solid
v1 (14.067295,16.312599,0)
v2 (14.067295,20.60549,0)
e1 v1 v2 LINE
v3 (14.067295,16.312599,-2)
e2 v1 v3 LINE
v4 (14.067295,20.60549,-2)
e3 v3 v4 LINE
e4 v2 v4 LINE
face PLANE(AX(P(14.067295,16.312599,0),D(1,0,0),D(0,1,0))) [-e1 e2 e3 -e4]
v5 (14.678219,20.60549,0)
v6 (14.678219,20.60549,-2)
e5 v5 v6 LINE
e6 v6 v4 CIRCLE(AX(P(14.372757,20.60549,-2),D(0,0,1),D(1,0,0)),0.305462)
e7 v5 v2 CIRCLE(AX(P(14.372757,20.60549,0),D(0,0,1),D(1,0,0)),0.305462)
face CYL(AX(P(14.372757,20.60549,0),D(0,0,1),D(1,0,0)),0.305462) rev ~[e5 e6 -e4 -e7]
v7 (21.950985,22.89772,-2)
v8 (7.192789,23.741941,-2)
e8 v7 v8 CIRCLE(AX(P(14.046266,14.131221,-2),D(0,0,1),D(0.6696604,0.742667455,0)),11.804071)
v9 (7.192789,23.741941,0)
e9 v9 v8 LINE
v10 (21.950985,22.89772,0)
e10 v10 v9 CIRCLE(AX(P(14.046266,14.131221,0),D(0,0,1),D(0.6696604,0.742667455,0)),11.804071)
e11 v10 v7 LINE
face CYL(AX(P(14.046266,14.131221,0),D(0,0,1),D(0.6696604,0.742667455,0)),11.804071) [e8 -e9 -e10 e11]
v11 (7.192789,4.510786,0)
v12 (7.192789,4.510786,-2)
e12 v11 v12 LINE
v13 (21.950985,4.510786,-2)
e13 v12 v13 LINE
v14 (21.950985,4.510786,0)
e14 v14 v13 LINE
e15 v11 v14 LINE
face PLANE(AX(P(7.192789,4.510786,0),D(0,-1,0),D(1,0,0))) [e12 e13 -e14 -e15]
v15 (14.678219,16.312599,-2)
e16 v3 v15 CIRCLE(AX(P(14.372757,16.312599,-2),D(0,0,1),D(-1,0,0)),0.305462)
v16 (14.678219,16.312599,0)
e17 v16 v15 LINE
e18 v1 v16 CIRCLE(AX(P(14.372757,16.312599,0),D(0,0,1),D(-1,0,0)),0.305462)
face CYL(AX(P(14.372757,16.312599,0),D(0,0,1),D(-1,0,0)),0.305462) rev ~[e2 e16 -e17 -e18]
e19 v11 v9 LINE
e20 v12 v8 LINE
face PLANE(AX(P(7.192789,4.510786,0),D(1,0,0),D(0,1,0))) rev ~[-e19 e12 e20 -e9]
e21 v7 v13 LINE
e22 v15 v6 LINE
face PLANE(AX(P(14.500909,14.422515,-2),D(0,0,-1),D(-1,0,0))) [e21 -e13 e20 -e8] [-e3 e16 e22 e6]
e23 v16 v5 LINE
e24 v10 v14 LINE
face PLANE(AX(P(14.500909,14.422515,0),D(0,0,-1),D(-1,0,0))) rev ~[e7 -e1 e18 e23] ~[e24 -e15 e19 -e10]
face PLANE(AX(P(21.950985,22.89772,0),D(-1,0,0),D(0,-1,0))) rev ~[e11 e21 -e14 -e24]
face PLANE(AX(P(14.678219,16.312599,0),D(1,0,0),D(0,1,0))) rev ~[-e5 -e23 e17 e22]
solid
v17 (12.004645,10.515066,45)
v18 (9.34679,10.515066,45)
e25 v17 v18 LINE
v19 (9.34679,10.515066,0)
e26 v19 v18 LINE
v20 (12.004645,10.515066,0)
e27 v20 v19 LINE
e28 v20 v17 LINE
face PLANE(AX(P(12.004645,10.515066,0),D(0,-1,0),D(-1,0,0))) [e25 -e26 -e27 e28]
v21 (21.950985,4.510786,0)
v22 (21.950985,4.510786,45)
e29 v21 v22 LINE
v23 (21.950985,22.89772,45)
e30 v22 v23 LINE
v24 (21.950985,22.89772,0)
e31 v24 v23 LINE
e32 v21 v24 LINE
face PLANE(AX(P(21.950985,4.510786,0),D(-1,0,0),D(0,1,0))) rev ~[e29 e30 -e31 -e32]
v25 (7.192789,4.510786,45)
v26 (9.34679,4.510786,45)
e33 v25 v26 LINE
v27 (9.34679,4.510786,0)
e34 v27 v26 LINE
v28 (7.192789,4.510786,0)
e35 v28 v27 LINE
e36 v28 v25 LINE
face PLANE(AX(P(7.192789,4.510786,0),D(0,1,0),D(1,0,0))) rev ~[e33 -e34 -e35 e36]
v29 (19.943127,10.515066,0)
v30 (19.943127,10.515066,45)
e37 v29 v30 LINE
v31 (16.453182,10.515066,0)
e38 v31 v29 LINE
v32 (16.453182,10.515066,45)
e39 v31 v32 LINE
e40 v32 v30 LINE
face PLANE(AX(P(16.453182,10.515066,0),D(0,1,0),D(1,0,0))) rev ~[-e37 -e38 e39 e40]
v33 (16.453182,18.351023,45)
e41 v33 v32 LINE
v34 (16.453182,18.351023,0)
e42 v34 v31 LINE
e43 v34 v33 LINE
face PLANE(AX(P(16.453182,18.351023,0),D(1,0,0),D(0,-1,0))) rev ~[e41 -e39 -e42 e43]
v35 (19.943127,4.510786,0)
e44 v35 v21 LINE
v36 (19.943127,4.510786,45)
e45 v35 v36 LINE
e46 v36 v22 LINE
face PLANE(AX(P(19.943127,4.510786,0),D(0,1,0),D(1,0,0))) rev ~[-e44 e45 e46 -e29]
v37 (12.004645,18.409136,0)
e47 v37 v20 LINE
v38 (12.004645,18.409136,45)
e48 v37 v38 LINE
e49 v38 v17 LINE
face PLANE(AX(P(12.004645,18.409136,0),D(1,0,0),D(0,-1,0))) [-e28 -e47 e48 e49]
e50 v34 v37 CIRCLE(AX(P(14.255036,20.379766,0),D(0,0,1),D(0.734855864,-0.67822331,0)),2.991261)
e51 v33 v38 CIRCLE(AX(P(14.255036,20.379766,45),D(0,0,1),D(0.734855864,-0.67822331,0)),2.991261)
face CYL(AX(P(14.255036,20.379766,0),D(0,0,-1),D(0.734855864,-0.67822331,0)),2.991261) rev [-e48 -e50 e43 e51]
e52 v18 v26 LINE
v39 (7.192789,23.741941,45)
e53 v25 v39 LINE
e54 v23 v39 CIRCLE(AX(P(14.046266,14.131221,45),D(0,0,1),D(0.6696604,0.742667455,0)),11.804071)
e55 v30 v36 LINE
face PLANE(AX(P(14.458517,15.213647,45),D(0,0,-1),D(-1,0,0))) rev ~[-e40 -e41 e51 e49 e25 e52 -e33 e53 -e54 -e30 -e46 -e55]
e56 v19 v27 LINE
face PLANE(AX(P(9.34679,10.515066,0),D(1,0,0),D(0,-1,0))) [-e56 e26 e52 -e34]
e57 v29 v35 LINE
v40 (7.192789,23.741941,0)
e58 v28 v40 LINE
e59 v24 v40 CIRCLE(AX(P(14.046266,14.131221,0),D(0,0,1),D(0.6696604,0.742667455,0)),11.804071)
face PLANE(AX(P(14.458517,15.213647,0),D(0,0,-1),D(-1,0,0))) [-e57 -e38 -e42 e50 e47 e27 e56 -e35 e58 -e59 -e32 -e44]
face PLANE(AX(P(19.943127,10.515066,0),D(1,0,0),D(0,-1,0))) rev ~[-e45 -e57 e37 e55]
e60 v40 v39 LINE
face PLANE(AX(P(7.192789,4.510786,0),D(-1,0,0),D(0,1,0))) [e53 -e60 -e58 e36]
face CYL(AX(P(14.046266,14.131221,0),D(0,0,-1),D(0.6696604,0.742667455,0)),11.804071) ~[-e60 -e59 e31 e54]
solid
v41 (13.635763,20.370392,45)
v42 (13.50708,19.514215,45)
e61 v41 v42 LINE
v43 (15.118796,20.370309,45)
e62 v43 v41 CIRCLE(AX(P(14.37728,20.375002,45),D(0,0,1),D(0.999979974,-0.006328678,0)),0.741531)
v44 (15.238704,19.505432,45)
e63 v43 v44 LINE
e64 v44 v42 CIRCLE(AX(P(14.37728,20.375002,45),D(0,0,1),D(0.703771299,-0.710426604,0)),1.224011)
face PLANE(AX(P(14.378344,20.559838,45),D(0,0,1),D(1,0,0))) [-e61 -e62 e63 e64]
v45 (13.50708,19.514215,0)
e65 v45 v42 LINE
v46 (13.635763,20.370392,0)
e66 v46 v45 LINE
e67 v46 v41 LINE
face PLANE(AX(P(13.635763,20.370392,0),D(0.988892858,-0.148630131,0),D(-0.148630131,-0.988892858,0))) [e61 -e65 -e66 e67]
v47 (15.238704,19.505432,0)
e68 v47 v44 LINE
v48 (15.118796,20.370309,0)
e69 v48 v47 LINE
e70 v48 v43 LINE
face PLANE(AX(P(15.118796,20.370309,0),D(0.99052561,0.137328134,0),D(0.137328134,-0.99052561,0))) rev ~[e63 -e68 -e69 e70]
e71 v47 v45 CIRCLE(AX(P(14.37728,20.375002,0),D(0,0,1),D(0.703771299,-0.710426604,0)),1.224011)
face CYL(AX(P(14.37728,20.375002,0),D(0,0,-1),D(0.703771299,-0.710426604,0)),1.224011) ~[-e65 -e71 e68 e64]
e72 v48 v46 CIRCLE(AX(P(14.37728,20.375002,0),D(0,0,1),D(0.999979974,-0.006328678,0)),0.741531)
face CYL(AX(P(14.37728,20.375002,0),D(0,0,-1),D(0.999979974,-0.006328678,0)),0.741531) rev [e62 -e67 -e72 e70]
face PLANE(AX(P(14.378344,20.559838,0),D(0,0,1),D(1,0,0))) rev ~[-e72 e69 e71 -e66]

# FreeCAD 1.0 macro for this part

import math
import FreeCAD as App
import Part
import Sketcher

doc = App.newDocument("Part")
body = doc.addObject("PartDesign::Body", "Body")

# Sketch on XY plane
sketch1 = doc.addObject("Sketcher::SketchObject", "Sketch")
body.addObject(sketch1)
sketch1.AttachmentSupport = (doc.XY_Plane, [""])
sketch1.MapMode = "FlatFace"
sketch1.addGeometry([
    Part.LineSegment(App.Vector(7.2, 23.7, 0), App.Vector(7.2, 4.5, 0)),  # 0
    Part.LineSegment(App.Vector(7.2, 4.5, 0), App.Vector(9.3, 4.5, 0)),  # 1
    Part.LineSegment(App.Vector(9.3, 4.5, 0), App.Vector(9.3, 10.5, 0)),  # 2
    Part.LineSegment(App.Vector(9.3, 10.5, 0), App.Vector(12, 10.5, 0)),  # 3
    Part.LineSegment(App.Vector(12, 10.5, 0), App.Vector(12, 18.4, 0)),  # 4
    Part.ArcOfCircle(Part.Circle(App.Vector(14.3, 20.4, 0), App.Vector(0, 0, 1), 3), math.radians(-43), math.radians(221)),  # 5
    Part.LineSegment(App.Vector(16.5, 18.4, 0), App.Vector(16.5, 10.5, 0)),  # 6
    Part.LineSegment(App.Vector(16.5, 10.5, 0), App.Vector(19.9, 10.5, 0)),  # 7
    Part.LineSegment(App.Vector(19.9, 10.5, 0), App.Vector(19.9, 4.5, 0)),  # 8
    Part.LineSegment(App.Vector(19.9, 4.5, 0), App.Vector(22, 4.5, 0)),  # 9
    Part.LineSegment(App.Vector(22, 4.5, 0), App.Vector(22, 22.9, 0)),  # 10
    Part.ArcOfCircle(Part.Circle(App.Vector(14, 14.1, 0), App.Vector(0, 0, 1), 11.8), math.radians(48), math.radians(125)),  # 11
], False)
sketch1.addConstraint([
    Sketcher.Constraint("Coincident", 0, 2, 1, 1),
    Sketcher.Constraint("Coincident", 1, 2, 2, 1),
    Sketcher.Constraint("Coincident", 2, 2, 3, 1),
    Sketcher.Constraint("Coincident", 3, 2, 4, 1),
    Sketcher.Constraint("Coincident", 4, 2, 5, 2),
    Sketcher.Constraint("Coincident", 5, 1, 6, 1),
    Sketcher.Constraint("Coincident", 6, 2, 7, 1),
    Sketcher.Constraint("Coincident", 7, 2, 8, 1),
    Sketcher.Constraint("Coincident", 8, 2, 9, 1),
    Sketcher.Constraint("Coincident", 9, 2, 10, 1),
    Sketcher.Constraint("Coincident", 10, 2, 11, 1),
    Sketcher.Constraint("Coincident", 11, 2, 0, 1),
    Sketcher.Constraint("Vertical", 0),
    Sketcher.Constraint("Horizontal", 1),
    Sketcher.Constraint("Vertical", 2),
    Sketcher.Constraint("Horizontal", 3),
    Sketcher.Constraint("Vertical", 4),
    Sketcher.Constraint("Vertical", 6),
    Sketcher.Constraint("Horizontal", 7),
    Sketcher.Constraint("Vertical", 8),
    Sketcher.Constraint("Horizontal", 9),
    Sketcher.Constraint("Vertical", 10),
    Sketcher.Constraint("Horizontal", 3, 2, 6, 2),
    Sketcher.Constraint("Horizontal", 1, 2, 8, 2),
    Sketcher.Constraint("DistanceX", 1, 1, 1, 2, 2.154001),
    Sketcher.Constraint("Radius", 5, 2.991261),
    Sketcher.Constraint("Radius", 11, 11.804071),
    Sketcher.Constraint("DistanceY", 2, 1, 2, 2, 6.00428),
    Sketcher.Constraint("DistanceY", 4, 1, 4, 2, 7.89407),
    Sketcher.Constraint("DistanceY", 2, 2, 5, 3, 9.8647),
    Sketcher.Constraint("DistanceY", 11, 3, 10, 2, 8.766499),
    Sketcher.Constraint("DistanceX", 3, 1, 3, 2, 2.657855),
    Sketcher.Constraint("DistanceX", 7, 1, 7, 2, 3.489945),
    Sketcher.Constraint("DistanceX", 9, 1, 9, 2, 2.007858),
    Sketcher.Constraint("DistanceY", 0, 2, 0, 1, 19.231155),
    Sketcher.Constraint("DistanceY", 6, 2, 6, 1, 7.835957),
    Sketcher.Constraint("DistanceY", -1, 1, 11, 3, 14.131221),
    Sketcher.Constraint("DistanceX", -1, 1, 0, 2, 7.192789),
])
pad1 = doc.addObject("PartDesign::Pad", "Pad")
body.addObject(pad1)
pad1.Profile = sketch1
pad1.Length = 45
body2 = doc.addObject("PartDesign::Body", "Body001")

# Sketch on XY plane
sketch2 = doc.addObject("Sketcher::SketchObject", "Sketch001")
body2.addObject(sketch2)
sketch2.AttachmentSupport = (doc.getObject("XY_Plane001"), [""])
sketch2.MapMode = "FlatFace"
sketch2.addGeometry([
    Part.ArcOfCircle(Part.Circle(App.Vector(14.4, 20.4, 0), App.Vector(0, 0, 1), 1.2), math.radians(-45), math.radians(225)),
    Part.LineSegment(App.Vector(13.5, 19.5, 0), App.Vector(13.6, 20.4, 0)),
    Part.ArcOfCircle(Part.Circle(App.Vector(14.4, 20.4, 0), App.Vector(0, 0, 1), 0.7), math.radians(0), math.radians(180)),
    Part.LineSegment(App.Vector(15.1, 20.4, 0), App.Vector(15.2, 19.5, 0)),
], False)
sketch2.addConstraint([
    Sketcher.Constraint("Coincident", 0, 2, 1, 1),
    Sketcher.Constraint("Coincident", 1, 2, 2, 2),
    Sketcher.Constraint("Coincident", 2, 1, 3, 1),
    Sketcher.Constraint("Coincident", 3, 2, 0, 1),
    Sketcher.Constraint("Coincident", 2, 3, 0, 3),
    Sketcher.Constraint("Radius", 0, 1.224011),
    Sketcher.Constraint("Radius", 2, 0.741531),
    Sketcher.Constraint("DistanceY", -1, 1, 0, 3, 20.375002),
    Sketcher.Constraint("DistanceX", 0, 2, 2, 3, 0.8702),
    Sketcher.Constraint("Distance", 3, 0.87315),
    Sketcher.Constraint("DistanceX", -1, 1, 0, 3, 14.37728),
    Sketcher.Constraint("DistanceY", -1, 1, 1, 2, 20.370392),
    Sketcher.Constraint("DistanceY", -1, 1, 2, 1, 20.370309),
])
pad2 = doc.addObject("PartDesign::Pad", "Pad001")
body2.addObject(pad2)
pad2.Profile = sketch2
pad2.Length = 45
body3 = doc.addObject("PartDesign::Body", "Body002")

# Sketch on XY plane
sketch3 = doc.addObject("Sketcher::SketchObject", "Sketch002")
body3.addObject(sketch3)
sketch3.AttachmentSupport = (doc.getObject("XY_Plane002"), [""])
sketch3.MapMode = "FlatFace"
sketch3.addGeometry([
    Part.LineSegment(App.Vector(7.19, 23.74, 0), App.Vector(7.19, 4.51, 0)),  # 0
    Part.LineSegment(App.Vector(7.19, 4.51, 0), App.Vector(21.95, 4.51, 0)),  # 1
    Part.LineSegment(App.Vector(21.95, 4.51, 0), App.Vector(21.95, 22.9, 0)),  # 2
    Part.ArcOfCircle(Part.Circle(App.Vector(14.05, 14.13, 0), App.Vector(0, 0, 1), 11.8), math.radians(48), math.radians(125)),  # 3
    Part.LineSegment(App.Vector(14.07, 16.31, 0), App.Vector(14.07, 20.61, 0)),  # 4
    Part.ArcOfCircle(Part.Circle(App.Vector(14.37, 20.61, 0), App.Vector(0, 0, 1), 0.31), math.radians(0), math.radians(180)),  # 5
    Part.LineSegment(App.Vector(14.68, 20.61, 0), App.Vector(14.68, 16.31, 0)),  # 6
    Part.ArcOfCircle(Part.Circle(App.Vector(14.37, 16.31, 0), App.Vector(0, 0, 1), 0.31), math.radians(180), math.radians(360)),  # 7
], False)
sketch3.addConstraint([
    Sketcher.Constraint("Coincident", 0, 2, 1, 1),
    Sketcher.Constraint("Coincident", 1, 2, 2, 1),
    Sketcher.Constraint("Coincident", 2, 2, 3, 1),
    Sketcher.Constraint("Coincident", 3, 2, 0, 1),
    Sketcher.Constraint("Tangent", 4, 2, 5, 2),
    Sketcher.Constraint("Tangent", 5, 1, 6, 1),
    Sketcher.Constraint("Tangent", 6, 2, 7, 2),
    Sketcher.Constraint("Tangent", 7, 1, 4, 1),
    Sketcher.Constraint("Vertical", 0),
    Sketcher.Constraint("Horizontal", 1),
    Sketcher.Constraint("Vertical", 2),
    Sketcher.Constraint("Vertical", 4),
    Sketcher.Constraint("Vertical", 6),
    Sketcher.Constraint("Radius", 3, 11.804071),
    Sketcher.Constraint("Radius", 5, 0.305462),
    Sketcher.Constraint("DistanceY", 4, 1, 4, 2, 4.292891),
    Sketcher.Constraint("DistanceY", -1, 1, 7, 3, 16.312599),
    Sketcher.Constraint("DistanceY", 3, 3, 2, 2, 8.766499),
    Sketcher.Constraint("DistanceX", 1, 1, 1, 2, 14.758196),
    Sketcher.Constraint("DistanceY", 0, 2, 0, 1, 19.231155),
    Sketcher.Constraint("DistanceY", -1, 1, 3, 3, 14.131221),
    Sketcher.Constraint("DistanceX", -1, 1, 0, 2, 7.192789),
    Sketcher.Constraint("DistanceX", -1, 1, 5, 1, 14.678219),
])
pad3 = doc.addObject("PartDesign::Pad", "Pad002")
body3.addObject(pad3)
pad3.Profile = sketch3
pad3.Length = 2
pad3.Reversed = True

doc.recompute()
